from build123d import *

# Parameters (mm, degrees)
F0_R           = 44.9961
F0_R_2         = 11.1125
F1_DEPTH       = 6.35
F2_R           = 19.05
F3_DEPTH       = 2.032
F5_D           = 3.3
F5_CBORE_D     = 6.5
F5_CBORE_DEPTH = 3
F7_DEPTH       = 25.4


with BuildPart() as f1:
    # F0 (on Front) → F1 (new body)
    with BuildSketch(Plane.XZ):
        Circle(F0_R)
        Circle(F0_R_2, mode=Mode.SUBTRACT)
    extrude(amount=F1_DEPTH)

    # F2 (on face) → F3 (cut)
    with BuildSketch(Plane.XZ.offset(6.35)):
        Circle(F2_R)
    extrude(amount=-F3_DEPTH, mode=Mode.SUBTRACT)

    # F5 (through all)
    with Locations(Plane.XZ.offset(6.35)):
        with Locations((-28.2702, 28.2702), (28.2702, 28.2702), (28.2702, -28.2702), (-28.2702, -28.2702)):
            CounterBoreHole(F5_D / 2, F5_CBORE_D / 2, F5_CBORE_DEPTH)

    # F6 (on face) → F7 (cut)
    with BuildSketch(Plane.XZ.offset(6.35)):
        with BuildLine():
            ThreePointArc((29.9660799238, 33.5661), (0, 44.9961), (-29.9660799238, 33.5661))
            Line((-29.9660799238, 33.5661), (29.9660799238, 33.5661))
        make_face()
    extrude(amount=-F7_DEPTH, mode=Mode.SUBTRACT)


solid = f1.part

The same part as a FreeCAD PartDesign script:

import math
import FreeCAD as App
import Part
import Sketcher
Q = App.Units.Quantity

doc = App.newDocument("Part")
body = doc.addObject("PartDesign::Body", "Body")

# Sketch on XZ plane
sketch1 = doc.addObject("Sketcher::SketchObject", "Sketch")
body.addObject(sketch1)
sketch1.AttachmentSupport = (doc.XZ_Plane, [""])
sketch1.MapMode = "FlatFace"
sketch1.addGeometry([
    Part.Circle(App.Vector(0, 0, 0), App.Vector(0, 0, 1), 45),
    Part.Circle(App.Vector(0, 0, 0), App.Vector(0, 0, 1), 11),
], False)
sketch1.addConstraint([
    Sketcher.Constraint("Coincident", 0, 3, -1, 1),
    Sketcher.Constraint("Coincident", 1, 3, -1, 1),
    Sketcher.Constraint("Diameter", 0, Q("3.543 in")),
    Sketcher.Constraint("Diameter", 1, Q("0.875 in")),
])
pad1 = doc.addObject("PartDesign::Pad", "Pad")
body.addObject(pad1)
pad1.Profile = sketch1
pad1.Length = Q("0.25 in")

# Sketch on XZ plane
sketch2 = doc.addObject("Sketcher::SketchObject", "Sketch001")
body.addObject(sketch2)
sketch2.AttachmentSupport = (doc.XZ_Plane, [""])
sketch2.MapMode = "FlatFace"
sketch2.AttachmentOffset = App.Placement(App.Vector(0, 0, 0.25 * 25.4), App.Rotation())
sketch2.addGeometry(Part.Circle(App.Vector(0, 0, 0), App.Vector(0, 0, 1), 19), False)
sketch2.addConstraint([
    Sketcher.Constraint("Coincident", 0, 3, -1, 1),
    Sketcher.Constraint("Diameter", 0, Q("1.5 in")),
])
pocket1 = doc.addObject("PartDesign::Pocket", "Pocket")
body.addObject(pocket1)
pocket1.Profile = sketch2
pocket1.Length = Q("0.08 in")

# Sketch on XZ plane
sketch3 = doc.addObject("Sketcher::SketchObject", "Sketch002")
body.addObject(sketch3)
sketch3.AttachmentSupport = (doc.XZ_Plane, [""])
sketch3.MapMode = "FlatFace"
sketch3.AttachmentOffset = App.Placement(App.Vector(0, 0, 0.25 * 25.4), App.Rotation())
sketch3.addGeometry([
    Part.Circle(App.Vector(-28.3, 28.3, 0), App.Vector(0, 0, 1), 1.6),
    Part.Circle(App.Vector(28.3, 28.3, 0), App.Vector(0, 0, 1), 1.6),
    Part.Circle(App.Vector(28.3, -28.3, 0), App.Vector(0, 0, 1), 1.6),
    Part.Circle(App.Vector(-28.3, -28.3, 0), App.Vector(0, 0, 1), 1.6),
], False)
sketch3.addConstraint([
    Sketcher.Constraint("Equal", 0, 1),
    Sketcher.Constraint("Equal", 1, 2),
    Sketcher.Constraint("Equal", 2, 3),
    Sketcher.Constraint("Symmetric", 0, 3, 2, 3, -1, 1),
    Sketcher.Constraint("Symmetric", 1, 3, 3, 3, -1, 1),
    Sketcher.Constraint("Symmetric", 0, 3, 1, 3, -2),
    Sketcher.Constraint("Diameter", 0, 3.3),
    Sketcher.Constraint("DistanceX", 0, 3, -1, 1, Q("1.113 in")),
    Sketcher.Constraint("DistanceY", -1, 1, 0, 3, Q("1.113 in")),
])
doc.recompute()
hole = doc.addObject("PartDesign::Hole", "Hole")
body.addObject(hole)
hole.Profile = sketch3
hole.ThreadType = "None"
hole.Diameter = 3.3
hole.DepthType = "ThroughAll"
hole.HoleCutType = "Counterbore"
hole.HoleCutDiameter = 6.5
hole.HoleCutDepth = 3

# Sketch on XZ plane
sketch4 = doc.addObject("Sketcher::SketchObject", "Sketch003")
body.addObject(sketch4)
sketch4.AttachmentSupport = (doc.XZ_Plane, [""])
sketch4.MapMode = "FlatFace"
sketch4.AttachmentOffset = App.Placement(App.Vector(0, 0, 0.25 * 25.4), App.Rotation())
sketch4.addGeometry([
    Part.ArcOfCircle(Part.Circle(App.Vector(0, 0, 0), App.Vector(0, 0, 1), 45), math.radians(48), math.radians(132)),
    Part.LineSegment(App.Vector(-30, 34, 0), App.Vector(30, 34, 0)),
], False)
sketch4.addConstraint([
    Sketcher.Constraint("Coincident", 0, 1, 1, 2),
    Sketcher.Constraint("Coincident", 1, 1, 0, 2),
    Sketcher.Constraint("Horizontal", 1),
    Sketcher.Constraint("Coincident", 0, 3, -1, 1),
    Sketcher.Constraint("Radius", 0, Q("1.7715 in")),
    Sketcher.Constraint("DistanceY", -1, 1, 0, 1, Q("1.3215 in")),
])
pocket2 = doc.addObject("PartDesign::Pocket", "Pocket001")
body.addObject(pocket2)
pocket2.Profile = sketch4
pocket2.Length = Q("1 in")

doc.recompute()
